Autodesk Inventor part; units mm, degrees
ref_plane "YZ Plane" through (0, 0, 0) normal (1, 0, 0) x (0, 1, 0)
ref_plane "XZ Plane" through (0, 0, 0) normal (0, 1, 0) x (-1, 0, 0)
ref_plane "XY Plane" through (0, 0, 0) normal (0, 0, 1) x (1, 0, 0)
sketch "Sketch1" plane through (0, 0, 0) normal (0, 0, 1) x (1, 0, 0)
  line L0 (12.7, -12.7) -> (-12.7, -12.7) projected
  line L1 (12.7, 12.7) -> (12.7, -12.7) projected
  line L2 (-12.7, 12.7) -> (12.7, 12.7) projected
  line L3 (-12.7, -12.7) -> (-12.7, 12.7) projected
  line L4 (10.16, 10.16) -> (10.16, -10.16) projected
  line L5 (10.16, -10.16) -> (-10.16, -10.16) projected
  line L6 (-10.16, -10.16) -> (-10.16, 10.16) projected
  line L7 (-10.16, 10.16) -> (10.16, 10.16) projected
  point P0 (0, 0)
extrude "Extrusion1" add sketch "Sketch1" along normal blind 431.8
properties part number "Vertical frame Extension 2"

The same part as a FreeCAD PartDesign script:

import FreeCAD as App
import Part
import Sketcher
Q = App.Units.Quantity

doc = App.newDocument("Part")
params = doc.addObject("Spreadsheet::Sheet", "Params")
for row, (alias, value) in enumerate([
    ("sketch1_width", "1 in"),
    ("sketch1_width2", "0.8 in"),
    ("pad1_length", "17 in"),
], start=1):
    params.set(f"A{row}", alias)
    params.set(f"B{row}", "=" + value)
    params.setAlias(f"B{row}", alias)

body = doc.addObject("PartDesign::Body", "Body")

# Sketch on XY plane
sketch1 = body.newObject("Sketcher::SketchObject", "Sketch")
sketch1.AttachmentSupport = (doc.getObject("XY_Plane"), [""])
sketch1.MapMode = "FlatFace"
sketch1.addGeometry(Part.LineSegment(App.Vector(-13, -13, 0), App.Vector(13, -13, 0)), False)
sketch1.addGeometry(Part.LineSegment(App.Vector(13, -13, 0), App.Vector(13, 13, 0)), False)
sketch1.addGeometry(Part.LineSegment(App.Vector(13, 13, 0), App.Vector(-13, 13, 0)), False)
sketch1.addGeometry(Part.LineSegment(App.Vector(-13, 13, 0), App.Vector(-13, -13, 0)), False)
sketch1.addGeometry(Part.LineSegment(App.Vector(-10, 10, 0), App.Vector(10, 10, 0)), False)
sketch1.addGeometry(Part.LineSegment(App.Vector(10, 10, 0), App.Vector(10, -10, 0)), False)
sketch1.addGeometry(Part.LineSegment(App.Vector(10, -10, 0), App.Vector(-10, -10, 0)), False)
sketch1.addGeometry(Part.LineSegment(App.Vector(-10, -10, 0), App.Vector(-10, 10, 0)), False)
sketch1.addConstraint(Sketcher.Constraint("Coincident", 0, 2, 1, 1))
sketch1.addConstraint(Sketcher.Constraint("Coincident", 1, 2, 2, 1))
sketch1.addConstraint(Sketcher.Constraint("Coincident", 2, 2, 3, 1))
sketch1.addConstraint(Sketcher.Constraint("Coincident", 3, 2, 0, 1))
sketch1.addConstraint(Sketcher.Constraint("Coincident", 4, 2, 5, 1))
sketch1.addConstraint(Sketcher.Constraint("Coincident", 5, 2, 6, 1))
sketch1.addConstraint(Sketcher.Constraint("Coincident", 6, 2, 7, 1))
sketch1.addConstraint(Sketcher.Constraint("Coincident", 7, 2, 4, 1))
sketch1.addConstraint(Sketcher.Constraint("Horizontal", 0))
sketch1.addConstraint(Sketcher.Constraint("Vertical", 1))
sketch1.addConstraint(Sketcher.Constraint("Horizontal", 2))
sketch1.addConstraint(Sketcher.Constraint("Vertical", 3))
sketch1.addConstraint(Sketcher.Constraint("Horizontal", 4))
sketch1.addConstraint(Sketcher.Constraint("Vertical", 5))
sketch1.addConstraint(Sketcher.Constraint("Horizontal", 6))
sketch1.addConstraint(Sketcher.Constraint("Vertical", 7))
sketch1.addConstraint(Sketcher.Constraint("Symmetric", 0, 2, 2, 2, -1, 1))
sketch1.addConstraint(Sketcher.Constraint("Symmetric", 4, 2, 6, 2, -1, 1))
sketch1.addConstraint(Sketcher.Constraint("Equal", 2, 1))
sketch1.addConstraint(Sketcher.Constraint("Equal", 6, 5))
sketch1.addConstraint(Sketcher.Constraint("DistanceX", 0, 1, 0, 2, Q("1 in")))
sketch1.addConstraint(Sketcher.Constraint("DistanceX", 4, 1, 4, 2, Q("0.8 in")))
sketch1.setExpression("Constraints[20]", "Params.sketch1_width")
sketch1.setExpression("Constraints[21]", "Params.sketch1_width2")
pad1 = body.newObject("PartDesign::Pad", "Pad")
pad1.Profile = sketch1
pad1.setExpression("Length", "Params.pad1_length")

doc.recompute()
